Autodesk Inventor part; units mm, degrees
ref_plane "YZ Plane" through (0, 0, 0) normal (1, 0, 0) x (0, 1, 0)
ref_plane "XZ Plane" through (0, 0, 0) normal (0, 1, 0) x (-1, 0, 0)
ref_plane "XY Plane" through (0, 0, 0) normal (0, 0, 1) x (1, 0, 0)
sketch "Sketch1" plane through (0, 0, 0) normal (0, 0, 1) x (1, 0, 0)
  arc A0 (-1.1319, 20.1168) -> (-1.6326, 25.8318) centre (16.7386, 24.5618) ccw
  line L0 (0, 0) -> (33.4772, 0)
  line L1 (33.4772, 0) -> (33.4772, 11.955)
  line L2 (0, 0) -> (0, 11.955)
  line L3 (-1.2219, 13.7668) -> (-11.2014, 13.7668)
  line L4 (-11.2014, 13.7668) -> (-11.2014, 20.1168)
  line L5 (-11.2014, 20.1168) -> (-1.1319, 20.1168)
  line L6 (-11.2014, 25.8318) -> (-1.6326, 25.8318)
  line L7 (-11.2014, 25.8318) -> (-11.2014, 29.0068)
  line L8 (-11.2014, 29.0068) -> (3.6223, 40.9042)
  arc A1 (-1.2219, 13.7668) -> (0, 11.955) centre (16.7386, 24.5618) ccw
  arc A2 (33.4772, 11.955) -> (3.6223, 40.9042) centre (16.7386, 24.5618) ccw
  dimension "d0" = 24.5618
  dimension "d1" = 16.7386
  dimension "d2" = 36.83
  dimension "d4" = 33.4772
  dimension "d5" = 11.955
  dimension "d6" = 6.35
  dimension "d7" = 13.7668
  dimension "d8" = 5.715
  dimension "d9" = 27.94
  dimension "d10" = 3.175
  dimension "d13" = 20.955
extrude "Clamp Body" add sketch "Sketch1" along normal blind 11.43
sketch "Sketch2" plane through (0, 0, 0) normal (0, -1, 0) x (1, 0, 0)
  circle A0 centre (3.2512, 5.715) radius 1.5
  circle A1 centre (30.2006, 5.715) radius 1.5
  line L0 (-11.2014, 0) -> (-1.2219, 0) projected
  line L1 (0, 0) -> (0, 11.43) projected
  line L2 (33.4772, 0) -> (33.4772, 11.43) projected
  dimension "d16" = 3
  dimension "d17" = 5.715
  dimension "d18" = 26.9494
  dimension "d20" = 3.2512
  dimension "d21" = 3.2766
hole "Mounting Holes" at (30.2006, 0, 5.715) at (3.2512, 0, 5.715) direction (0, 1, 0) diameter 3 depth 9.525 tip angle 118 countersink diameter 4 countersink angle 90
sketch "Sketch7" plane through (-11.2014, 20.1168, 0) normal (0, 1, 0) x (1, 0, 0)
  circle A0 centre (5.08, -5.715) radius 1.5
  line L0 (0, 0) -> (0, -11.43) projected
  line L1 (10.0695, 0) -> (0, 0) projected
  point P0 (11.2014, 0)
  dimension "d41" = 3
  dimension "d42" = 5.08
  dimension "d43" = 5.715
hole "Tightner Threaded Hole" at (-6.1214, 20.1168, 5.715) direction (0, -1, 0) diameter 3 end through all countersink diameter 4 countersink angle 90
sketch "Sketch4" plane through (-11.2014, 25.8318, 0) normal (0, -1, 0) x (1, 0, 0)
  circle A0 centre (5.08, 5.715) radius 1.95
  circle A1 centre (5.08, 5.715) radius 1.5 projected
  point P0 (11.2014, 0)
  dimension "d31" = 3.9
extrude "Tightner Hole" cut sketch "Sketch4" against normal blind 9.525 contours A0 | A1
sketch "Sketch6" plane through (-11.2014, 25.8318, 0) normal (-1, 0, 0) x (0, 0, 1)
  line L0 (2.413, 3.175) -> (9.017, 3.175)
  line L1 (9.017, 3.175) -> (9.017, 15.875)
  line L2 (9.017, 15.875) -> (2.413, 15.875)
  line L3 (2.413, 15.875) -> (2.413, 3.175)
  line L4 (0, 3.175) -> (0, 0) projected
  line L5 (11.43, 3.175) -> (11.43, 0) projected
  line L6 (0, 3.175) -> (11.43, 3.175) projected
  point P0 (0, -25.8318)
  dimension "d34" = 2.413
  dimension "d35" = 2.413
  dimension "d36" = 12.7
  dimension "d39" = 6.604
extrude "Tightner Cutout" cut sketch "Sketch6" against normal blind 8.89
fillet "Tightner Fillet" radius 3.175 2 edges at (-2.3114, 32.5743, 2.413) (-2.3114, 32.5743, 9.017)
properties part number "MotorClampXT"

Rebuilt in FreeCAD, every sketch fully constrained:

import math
import FreeCAD as App
import Part
import Sketcher

V = App.Vector
Q = App.Units.Quantity


def edges_at(feature, points):
    """Names of the edges that pass closest to the given points."""
    edges = feature.Shape.Edges
    near = lambda p: min(range(len(edges)), key=lambda i: edges[i].distToShape(Part.Vertex(*p))[0])
    return sorted({f"Edge{near(p) + 1}" for p in points})

doc = App.newDocument("Part")
body = doc.addObject("PartDesign::Body", "Body")

sketch1 = body.newObject("Sketcher::SketchObject", "Sketch")
sketch1.AttachmentSupport = (doc.getObject("XY_Plane"), [""])
sketch1.MapMode = "FlatFace"
sketch1.addGeometry(Part.ArcOfCircle(Part.Circle(V(16.7, 24.6, 0), V(0, 0, 1), 18.4), math.radians(-166), math.radians(176)), False)
sketch1.addGeometry(Part.LineSegment(V(-1.1, 20.1, 0), V(-11.2, 20.1, 0)), False)
sketch1.addGeometry(Part.LineSegment(V(-11.2, 20.1, 0), V(-11.2, 13.8, 0)), False)
sketch1.addGeometry(Part.LineSegment(V(-11.2, 13.8, 0), V(-1.2, 13.8, 0)), False)
sketch1.addGeometry(Part.ArcOfCircle(Part.Circle(V(16.7, 24.6, 0), V(0, 0, 1), 21), math.radians(-148.99), math.radians(-143.02)), False)
sketch1.addGeometry(Part.LineSegment(V(0, 12, 0), V(0, 0, 0)), False)
sketch1.addGeometry(Part.LineSegment(V(0, 0, 0), V(33.5, 0, 0)), False)
sketch1.addGeometry(Part.LineSegment(V(33.5, 0, 0), V(33.5, 12, 0)), False)
sketch1.addGeometry(Part.ArcOfCircle(Part.Circle(V(16.7, 24.6, 0), V(0, 0, 1), 21), math.radians(-37), math.radians(129)), False)
sketch1.addGeometry(Part.LineSegment(V(3.6, 40.9, 0), V(-11.2, 29, 0)), False)
sketch1.addGeometry(Part.LineSegment(V(-11.2, 29, 0), V(-11.2, 25.8, 0)), False)
sketch1.addGeometry(Part.LineSegment(V(-11.2, 25.8, 0), V(-1.6, 25.8, 0)), False)
sketch1.addConstraint(Sketcher.Constraint("Coincident", 0, 1, 1, 1))
sketch1.addConstraint(Sketcher.Constraint("Coincident", 1, 2, 2, 1))
sketch1.addConstraint(Sketcher.Constraint("Coincident", 2, 2, 3, 1))
sketch1.addConstraint(Sketcher.Constraint("Coincident", 3, 2, 4, 1))
sketch1.addConstraint(Sketcher.Constraint("Coincident", 4, 2, 5, 1))
sketch1.addConstraint(Sketcher.Constraint("Coincident", 5, 2, 6, 1))
sketch1.addConstraint(Sketcher.Constraint("Coincident", 6, 2, 7, 1))
sketch1.addConstraint(Sketcher.Constraint("Coincident", 7, 2, 8, 1))
sketch1.addConstraint(Sketcher.Constraint("Tangent", 8, 2, 9, 1))
sketch1.addConstraint(Sketcher.Constraint("Coincident", 9, 2, 10, 1))
sketch1.addConstraint(Sketcher.Constraint("Coincident", 10, 2, 11, 1))
sketch1.addConstraint(Sketcher.Constraint("Coincident", 11, 2, 0, 2))
sketch1.addConstraint(Sketcher.Constraint("Horizontal", 1))
sketch1.addConstraint(Sketcher.Constraint("Vertical", 2))
sketch1.addConstraint(Sketcher.Constraint("Horizontal", 3))
sketch1.addConstraint(Sketcher.Constraint("Vertical", 5))
sketch1.addConstraint(Sketcher.Constraint("Horizontal", 6))
sketch1.addConstraint(Sketcher.Constraint("Vertical", 7))
sketch1.addConstraint(Sketcher.Constraint("Vertical", 10))
sketch1.addConstraint(Sketcher.Constraint("Horizontal", 11))
sketch1.addConstraint(Sketcher.Constraint("Coincident", 5, 2, -1, 1))
sketch1.addConstraint(Sketcher.Constraint("Coincident", 8, 3, 0, 3))
sketch1.addConstraint(Sketcher.Constraint("Horizontal", 4, 2, 7, 2))
sketch1.addConstraint(Sketcher.Constraint("Vertical", 2, 2, 9, 2))
sketch1.addConstraint(Sketcher.Constraint("Radius", 0, Q("0.725 in")))
sketch1.addConstraint(Sketcher.Constraint("Radius", 8, Q("0.825 in")))
sketch1.addConstraint(Sketcher.Constraint("DistanceY", 2, 2, 2, 1, Q("0.25 in")))
sketch1.addConstraint(Sketcher.Constraint("DistanceX", 1, 2, 0, 3, Q("1.1 in")))
sketch1.addConstraint(Sketcher.Constraint("DistanceX", 6, 1, 6, 2, Q("1.318 in")))
sketch1.addConstraint(Sketcher.Constraint("DistanceY", 10, 2, 10, 1, Q("0.125 in")))
sketch1.addConstraint(Sketcher.Constraint("DistanceX", -1, 1, 0, 3, Q("0.659 in")))
sketch1.addConstraint(Sketcher.Constraint("DistanceY", -1, 1, 0, 3, Q("0.967 in")))
sketch1.addConstraint(Sketcher.Constraint("DistanceY", -1, 1, 2, 2, Q("0.542 in")))
sketch1.addConstraint(Sketcher.Constraint("DistanceY", 1, 2, 10, 2, Q("0.225 in")))
sketch1.addConstraint(Sketcher.Constraint("Radius", 4, Q("0.8252 in")))
sketch1.addConstraint(Sketcher.Constraint("DistanceX", 3, 1, 3, 2, Q("0.3929 in")))
pad1 = body.newObject("PartDesign::Pad", "Pad")
pad1.Profile = sketch1
pad1.Length = Q("0.45 in")

sketch2 = body.newObject("Sketcher::SketchObject", "Sketch001")
sketch2.AttachmentSupport = (doc.getObject("XZ_Plane"), [""])
sketch2.MapMode = "FlatFace"
sketch2.addGeometry(Part.Circle(V(30.2, 5.7, 0), V(0, 0, 1), 1.5), False)
sketch2.addGeometry(Part.Circle(V(3.3, 5.7, 0), V(0, 0, 1), 1.5), False)
sketch2.addConstraint(Sketcher.Constraint("Equal", 0, 1))
sketch2.addConstraint(Sketcher.Constraint("Horizontal", 0, 3, 1, 3))
sketch2.addConstraint(Sketcher.Constraint("Diameter", 0, Q("0.1181 in")))
sketch2.addConstraint(Sketcher.Constraint("DistanceX", -1, 1, 0, 3, Q("1.189 in")))
sketch2.addConstraint(Sketcher.Constraint("DistanceY", -1, 1, 0, 3, Q("0.225 in")))
sketch2.addConstraint(Sketcher.Constraint("DistanceX", -1, 1, 1, 3, Q("0.128 in")))
doc.recompute()
hole = body.newObject("PartDesign::Hole", "Hole")
hole.Profile = sketch2
hole.ThreadType = "None"
hole.Diameter = Q("0.1181102 in")
hole.DepthType = "Dimension"
hole.Depth = Q("0.375 in")
hole.DrillPoint = "Angled"
hole.DrillPointAngle = 118
hole.HoleCutType = "Countersink"
hole.HoleCutDiameter = 4
hole.HoleCutCountersinkAngle = 90

sketch3 = body.newObject("Sketcher::SketchObject", "Sketch002")
sketch3.AttachmentSupport = (doc.getObject("XZ_Plane"), [""])
sketch3.MapMode = "FlatFace"
sketch3.AttachmentOffset = App.Placement(V(0, 0, -0.792 * 25.4), App.Rotation())
sketch3.addGeometry(Part.Circle(V(-6.1, 5.7, 0), V(0, 0, 1), 1.5), False)
sketch3.addConstraint(Sketcher.Constraint("Diameter", 0, Q("0.1181 in")))
sketch3.addConstraint(Sketcher.Constraint("DistanceX", 0, 3, -1, 1, Q("0.241 in")))
sketch3.addConstraint(Sketcher.Constraint("DistanceY", -1, 1, 0, 3, Q("0.225 in")))
doc.recompute()
hole2 = body.newObject("PartDesign::Hole", "Hole001")
hole2.Profile = sketch3
hole2.ThreadType = "None"
hole2.Diameter = Q("0.1181102 in")
hole2.DepthType = "ThroughAll"
hole2.HoleCutType = "Countersink"
hole2.HoleCutDiameter = 4
hole2.HoleCutCountersinkAngle = 90
hole2.Reversed = True

sketch4 = body.newObject("Sketcher::SketchObject", "Sketch003")
sketch4.AttachmentSupport = (doc.getObject("XZ_Plane"), [""])
sketch4.MapMode = "FlatFace"
sketch4.AttachmentOffset = App.Placement(V(0, 0, -1.017 * 25.4), App.Rotation())
sketch4.addGeometry(Part.Circle(V(-6.1, 5.7, 0), V(0, 0, 1), 1.9), False)
sketch4.addConstraint(Sketcher.Constraint("Diameter", 0, 3.9))
sketch4.addConstraint(Sketcher.Constraint("DistanceX", 0, 3, -1, 1, Q("0.241 in")))
sketch4.addConstraint(Sketcher.Constraint("DistanceY", -1, 1, 0, 3, Q("0.225 in")))
pocket1 = body.newObject("PartDesign::Pocket", "Pocket")
pocket1.Profile = sketch4
pocket1.Length = Q("0.375 in")

sketch5 = body.newObject("Sketcher::SketchObject", "Sketch004")
sketch5.AttachmentSupport = (doc.getObject("YZ_Plane"), [""])
sketch5.MapMode = "FlatFace"
sketch5.AttachmentOffset = App.Placement(V(0, 0, -0.441 * 25.4), App.Rotation())
sketch5.addGeometry(Part.LineSegment(V(42, 2, 0), V(29, 2, 0)), False)
sketch5.addGeometry(Part.LineSegment(V(29, 2, 0), V(29, 9, 0)), False)
sketch5.addGeometry(Part.LineSegment(V(29, 9, 0), V(42, 9, 0)), False)
sketch5.addGeometry(Part.LineSegment(V(42, 9, 0), V(42, 2, 0)), False)
sketch5.addConstraint(Sketcher.Constraint("Coincident", 0, 2, 1, 1))
sketch5.addConstraint(Sketcher.Constraint("Coincident", 1, 2, 2, 1))
sketch5.addConstraint(Sketcher.Constraint("Coincident", 2, 2, 3, 1))
sketch5.addConstraint(Sketcher.Constraint("Coincident", 3, 2, 0, 1))
sketch5.addConstraint(Sketcher.Constraint("Horizontal", 0))
sketch5.addConstraint(Sketcher.Constraint("Vertical", 1))
sketch5.addConstraint(Sketcher.Constraint("Horizontal", 2))
sketch5.addConstraint(Sketcher.Constraint("Vertical", 3))
sketch5.addConstraint(Sketcher.Constraint("DistanceX", 0, 2, 0, 1, Q("0.5 in")))
sketch5.addConstraint(Sketcher.Constraint("DistanceY", 1, 1, 1, 2, Q("0.26 in")))
sketch5.addConstraint(Sketcher.Constraint("DistanceY", -1, 1, 0, 2, Q("0.095 in")))
sketch5.addConstraint(Sketcher.Constraint("DistanceX", -1, 1, 0, 2, Q("1.142 in")))
pocket2 = body.newObject("PartDesign::Pocket", "Pocket001")
pocket2.Profile = sketch5
pocket2.Length = Q("0.35 in")
pocket2.Reversed = True
doc.recompute()

fillet = body.newObject("PartDesign::Fillet", "Fillet")
fillet.Base = (pocket2, edges_at(pocket2, [(-2.311, 32.574, 2.413), (-2.311, 32.574, 9.017)]))
fillet.Radius = Q("0.125 in")

doc.recompute()
